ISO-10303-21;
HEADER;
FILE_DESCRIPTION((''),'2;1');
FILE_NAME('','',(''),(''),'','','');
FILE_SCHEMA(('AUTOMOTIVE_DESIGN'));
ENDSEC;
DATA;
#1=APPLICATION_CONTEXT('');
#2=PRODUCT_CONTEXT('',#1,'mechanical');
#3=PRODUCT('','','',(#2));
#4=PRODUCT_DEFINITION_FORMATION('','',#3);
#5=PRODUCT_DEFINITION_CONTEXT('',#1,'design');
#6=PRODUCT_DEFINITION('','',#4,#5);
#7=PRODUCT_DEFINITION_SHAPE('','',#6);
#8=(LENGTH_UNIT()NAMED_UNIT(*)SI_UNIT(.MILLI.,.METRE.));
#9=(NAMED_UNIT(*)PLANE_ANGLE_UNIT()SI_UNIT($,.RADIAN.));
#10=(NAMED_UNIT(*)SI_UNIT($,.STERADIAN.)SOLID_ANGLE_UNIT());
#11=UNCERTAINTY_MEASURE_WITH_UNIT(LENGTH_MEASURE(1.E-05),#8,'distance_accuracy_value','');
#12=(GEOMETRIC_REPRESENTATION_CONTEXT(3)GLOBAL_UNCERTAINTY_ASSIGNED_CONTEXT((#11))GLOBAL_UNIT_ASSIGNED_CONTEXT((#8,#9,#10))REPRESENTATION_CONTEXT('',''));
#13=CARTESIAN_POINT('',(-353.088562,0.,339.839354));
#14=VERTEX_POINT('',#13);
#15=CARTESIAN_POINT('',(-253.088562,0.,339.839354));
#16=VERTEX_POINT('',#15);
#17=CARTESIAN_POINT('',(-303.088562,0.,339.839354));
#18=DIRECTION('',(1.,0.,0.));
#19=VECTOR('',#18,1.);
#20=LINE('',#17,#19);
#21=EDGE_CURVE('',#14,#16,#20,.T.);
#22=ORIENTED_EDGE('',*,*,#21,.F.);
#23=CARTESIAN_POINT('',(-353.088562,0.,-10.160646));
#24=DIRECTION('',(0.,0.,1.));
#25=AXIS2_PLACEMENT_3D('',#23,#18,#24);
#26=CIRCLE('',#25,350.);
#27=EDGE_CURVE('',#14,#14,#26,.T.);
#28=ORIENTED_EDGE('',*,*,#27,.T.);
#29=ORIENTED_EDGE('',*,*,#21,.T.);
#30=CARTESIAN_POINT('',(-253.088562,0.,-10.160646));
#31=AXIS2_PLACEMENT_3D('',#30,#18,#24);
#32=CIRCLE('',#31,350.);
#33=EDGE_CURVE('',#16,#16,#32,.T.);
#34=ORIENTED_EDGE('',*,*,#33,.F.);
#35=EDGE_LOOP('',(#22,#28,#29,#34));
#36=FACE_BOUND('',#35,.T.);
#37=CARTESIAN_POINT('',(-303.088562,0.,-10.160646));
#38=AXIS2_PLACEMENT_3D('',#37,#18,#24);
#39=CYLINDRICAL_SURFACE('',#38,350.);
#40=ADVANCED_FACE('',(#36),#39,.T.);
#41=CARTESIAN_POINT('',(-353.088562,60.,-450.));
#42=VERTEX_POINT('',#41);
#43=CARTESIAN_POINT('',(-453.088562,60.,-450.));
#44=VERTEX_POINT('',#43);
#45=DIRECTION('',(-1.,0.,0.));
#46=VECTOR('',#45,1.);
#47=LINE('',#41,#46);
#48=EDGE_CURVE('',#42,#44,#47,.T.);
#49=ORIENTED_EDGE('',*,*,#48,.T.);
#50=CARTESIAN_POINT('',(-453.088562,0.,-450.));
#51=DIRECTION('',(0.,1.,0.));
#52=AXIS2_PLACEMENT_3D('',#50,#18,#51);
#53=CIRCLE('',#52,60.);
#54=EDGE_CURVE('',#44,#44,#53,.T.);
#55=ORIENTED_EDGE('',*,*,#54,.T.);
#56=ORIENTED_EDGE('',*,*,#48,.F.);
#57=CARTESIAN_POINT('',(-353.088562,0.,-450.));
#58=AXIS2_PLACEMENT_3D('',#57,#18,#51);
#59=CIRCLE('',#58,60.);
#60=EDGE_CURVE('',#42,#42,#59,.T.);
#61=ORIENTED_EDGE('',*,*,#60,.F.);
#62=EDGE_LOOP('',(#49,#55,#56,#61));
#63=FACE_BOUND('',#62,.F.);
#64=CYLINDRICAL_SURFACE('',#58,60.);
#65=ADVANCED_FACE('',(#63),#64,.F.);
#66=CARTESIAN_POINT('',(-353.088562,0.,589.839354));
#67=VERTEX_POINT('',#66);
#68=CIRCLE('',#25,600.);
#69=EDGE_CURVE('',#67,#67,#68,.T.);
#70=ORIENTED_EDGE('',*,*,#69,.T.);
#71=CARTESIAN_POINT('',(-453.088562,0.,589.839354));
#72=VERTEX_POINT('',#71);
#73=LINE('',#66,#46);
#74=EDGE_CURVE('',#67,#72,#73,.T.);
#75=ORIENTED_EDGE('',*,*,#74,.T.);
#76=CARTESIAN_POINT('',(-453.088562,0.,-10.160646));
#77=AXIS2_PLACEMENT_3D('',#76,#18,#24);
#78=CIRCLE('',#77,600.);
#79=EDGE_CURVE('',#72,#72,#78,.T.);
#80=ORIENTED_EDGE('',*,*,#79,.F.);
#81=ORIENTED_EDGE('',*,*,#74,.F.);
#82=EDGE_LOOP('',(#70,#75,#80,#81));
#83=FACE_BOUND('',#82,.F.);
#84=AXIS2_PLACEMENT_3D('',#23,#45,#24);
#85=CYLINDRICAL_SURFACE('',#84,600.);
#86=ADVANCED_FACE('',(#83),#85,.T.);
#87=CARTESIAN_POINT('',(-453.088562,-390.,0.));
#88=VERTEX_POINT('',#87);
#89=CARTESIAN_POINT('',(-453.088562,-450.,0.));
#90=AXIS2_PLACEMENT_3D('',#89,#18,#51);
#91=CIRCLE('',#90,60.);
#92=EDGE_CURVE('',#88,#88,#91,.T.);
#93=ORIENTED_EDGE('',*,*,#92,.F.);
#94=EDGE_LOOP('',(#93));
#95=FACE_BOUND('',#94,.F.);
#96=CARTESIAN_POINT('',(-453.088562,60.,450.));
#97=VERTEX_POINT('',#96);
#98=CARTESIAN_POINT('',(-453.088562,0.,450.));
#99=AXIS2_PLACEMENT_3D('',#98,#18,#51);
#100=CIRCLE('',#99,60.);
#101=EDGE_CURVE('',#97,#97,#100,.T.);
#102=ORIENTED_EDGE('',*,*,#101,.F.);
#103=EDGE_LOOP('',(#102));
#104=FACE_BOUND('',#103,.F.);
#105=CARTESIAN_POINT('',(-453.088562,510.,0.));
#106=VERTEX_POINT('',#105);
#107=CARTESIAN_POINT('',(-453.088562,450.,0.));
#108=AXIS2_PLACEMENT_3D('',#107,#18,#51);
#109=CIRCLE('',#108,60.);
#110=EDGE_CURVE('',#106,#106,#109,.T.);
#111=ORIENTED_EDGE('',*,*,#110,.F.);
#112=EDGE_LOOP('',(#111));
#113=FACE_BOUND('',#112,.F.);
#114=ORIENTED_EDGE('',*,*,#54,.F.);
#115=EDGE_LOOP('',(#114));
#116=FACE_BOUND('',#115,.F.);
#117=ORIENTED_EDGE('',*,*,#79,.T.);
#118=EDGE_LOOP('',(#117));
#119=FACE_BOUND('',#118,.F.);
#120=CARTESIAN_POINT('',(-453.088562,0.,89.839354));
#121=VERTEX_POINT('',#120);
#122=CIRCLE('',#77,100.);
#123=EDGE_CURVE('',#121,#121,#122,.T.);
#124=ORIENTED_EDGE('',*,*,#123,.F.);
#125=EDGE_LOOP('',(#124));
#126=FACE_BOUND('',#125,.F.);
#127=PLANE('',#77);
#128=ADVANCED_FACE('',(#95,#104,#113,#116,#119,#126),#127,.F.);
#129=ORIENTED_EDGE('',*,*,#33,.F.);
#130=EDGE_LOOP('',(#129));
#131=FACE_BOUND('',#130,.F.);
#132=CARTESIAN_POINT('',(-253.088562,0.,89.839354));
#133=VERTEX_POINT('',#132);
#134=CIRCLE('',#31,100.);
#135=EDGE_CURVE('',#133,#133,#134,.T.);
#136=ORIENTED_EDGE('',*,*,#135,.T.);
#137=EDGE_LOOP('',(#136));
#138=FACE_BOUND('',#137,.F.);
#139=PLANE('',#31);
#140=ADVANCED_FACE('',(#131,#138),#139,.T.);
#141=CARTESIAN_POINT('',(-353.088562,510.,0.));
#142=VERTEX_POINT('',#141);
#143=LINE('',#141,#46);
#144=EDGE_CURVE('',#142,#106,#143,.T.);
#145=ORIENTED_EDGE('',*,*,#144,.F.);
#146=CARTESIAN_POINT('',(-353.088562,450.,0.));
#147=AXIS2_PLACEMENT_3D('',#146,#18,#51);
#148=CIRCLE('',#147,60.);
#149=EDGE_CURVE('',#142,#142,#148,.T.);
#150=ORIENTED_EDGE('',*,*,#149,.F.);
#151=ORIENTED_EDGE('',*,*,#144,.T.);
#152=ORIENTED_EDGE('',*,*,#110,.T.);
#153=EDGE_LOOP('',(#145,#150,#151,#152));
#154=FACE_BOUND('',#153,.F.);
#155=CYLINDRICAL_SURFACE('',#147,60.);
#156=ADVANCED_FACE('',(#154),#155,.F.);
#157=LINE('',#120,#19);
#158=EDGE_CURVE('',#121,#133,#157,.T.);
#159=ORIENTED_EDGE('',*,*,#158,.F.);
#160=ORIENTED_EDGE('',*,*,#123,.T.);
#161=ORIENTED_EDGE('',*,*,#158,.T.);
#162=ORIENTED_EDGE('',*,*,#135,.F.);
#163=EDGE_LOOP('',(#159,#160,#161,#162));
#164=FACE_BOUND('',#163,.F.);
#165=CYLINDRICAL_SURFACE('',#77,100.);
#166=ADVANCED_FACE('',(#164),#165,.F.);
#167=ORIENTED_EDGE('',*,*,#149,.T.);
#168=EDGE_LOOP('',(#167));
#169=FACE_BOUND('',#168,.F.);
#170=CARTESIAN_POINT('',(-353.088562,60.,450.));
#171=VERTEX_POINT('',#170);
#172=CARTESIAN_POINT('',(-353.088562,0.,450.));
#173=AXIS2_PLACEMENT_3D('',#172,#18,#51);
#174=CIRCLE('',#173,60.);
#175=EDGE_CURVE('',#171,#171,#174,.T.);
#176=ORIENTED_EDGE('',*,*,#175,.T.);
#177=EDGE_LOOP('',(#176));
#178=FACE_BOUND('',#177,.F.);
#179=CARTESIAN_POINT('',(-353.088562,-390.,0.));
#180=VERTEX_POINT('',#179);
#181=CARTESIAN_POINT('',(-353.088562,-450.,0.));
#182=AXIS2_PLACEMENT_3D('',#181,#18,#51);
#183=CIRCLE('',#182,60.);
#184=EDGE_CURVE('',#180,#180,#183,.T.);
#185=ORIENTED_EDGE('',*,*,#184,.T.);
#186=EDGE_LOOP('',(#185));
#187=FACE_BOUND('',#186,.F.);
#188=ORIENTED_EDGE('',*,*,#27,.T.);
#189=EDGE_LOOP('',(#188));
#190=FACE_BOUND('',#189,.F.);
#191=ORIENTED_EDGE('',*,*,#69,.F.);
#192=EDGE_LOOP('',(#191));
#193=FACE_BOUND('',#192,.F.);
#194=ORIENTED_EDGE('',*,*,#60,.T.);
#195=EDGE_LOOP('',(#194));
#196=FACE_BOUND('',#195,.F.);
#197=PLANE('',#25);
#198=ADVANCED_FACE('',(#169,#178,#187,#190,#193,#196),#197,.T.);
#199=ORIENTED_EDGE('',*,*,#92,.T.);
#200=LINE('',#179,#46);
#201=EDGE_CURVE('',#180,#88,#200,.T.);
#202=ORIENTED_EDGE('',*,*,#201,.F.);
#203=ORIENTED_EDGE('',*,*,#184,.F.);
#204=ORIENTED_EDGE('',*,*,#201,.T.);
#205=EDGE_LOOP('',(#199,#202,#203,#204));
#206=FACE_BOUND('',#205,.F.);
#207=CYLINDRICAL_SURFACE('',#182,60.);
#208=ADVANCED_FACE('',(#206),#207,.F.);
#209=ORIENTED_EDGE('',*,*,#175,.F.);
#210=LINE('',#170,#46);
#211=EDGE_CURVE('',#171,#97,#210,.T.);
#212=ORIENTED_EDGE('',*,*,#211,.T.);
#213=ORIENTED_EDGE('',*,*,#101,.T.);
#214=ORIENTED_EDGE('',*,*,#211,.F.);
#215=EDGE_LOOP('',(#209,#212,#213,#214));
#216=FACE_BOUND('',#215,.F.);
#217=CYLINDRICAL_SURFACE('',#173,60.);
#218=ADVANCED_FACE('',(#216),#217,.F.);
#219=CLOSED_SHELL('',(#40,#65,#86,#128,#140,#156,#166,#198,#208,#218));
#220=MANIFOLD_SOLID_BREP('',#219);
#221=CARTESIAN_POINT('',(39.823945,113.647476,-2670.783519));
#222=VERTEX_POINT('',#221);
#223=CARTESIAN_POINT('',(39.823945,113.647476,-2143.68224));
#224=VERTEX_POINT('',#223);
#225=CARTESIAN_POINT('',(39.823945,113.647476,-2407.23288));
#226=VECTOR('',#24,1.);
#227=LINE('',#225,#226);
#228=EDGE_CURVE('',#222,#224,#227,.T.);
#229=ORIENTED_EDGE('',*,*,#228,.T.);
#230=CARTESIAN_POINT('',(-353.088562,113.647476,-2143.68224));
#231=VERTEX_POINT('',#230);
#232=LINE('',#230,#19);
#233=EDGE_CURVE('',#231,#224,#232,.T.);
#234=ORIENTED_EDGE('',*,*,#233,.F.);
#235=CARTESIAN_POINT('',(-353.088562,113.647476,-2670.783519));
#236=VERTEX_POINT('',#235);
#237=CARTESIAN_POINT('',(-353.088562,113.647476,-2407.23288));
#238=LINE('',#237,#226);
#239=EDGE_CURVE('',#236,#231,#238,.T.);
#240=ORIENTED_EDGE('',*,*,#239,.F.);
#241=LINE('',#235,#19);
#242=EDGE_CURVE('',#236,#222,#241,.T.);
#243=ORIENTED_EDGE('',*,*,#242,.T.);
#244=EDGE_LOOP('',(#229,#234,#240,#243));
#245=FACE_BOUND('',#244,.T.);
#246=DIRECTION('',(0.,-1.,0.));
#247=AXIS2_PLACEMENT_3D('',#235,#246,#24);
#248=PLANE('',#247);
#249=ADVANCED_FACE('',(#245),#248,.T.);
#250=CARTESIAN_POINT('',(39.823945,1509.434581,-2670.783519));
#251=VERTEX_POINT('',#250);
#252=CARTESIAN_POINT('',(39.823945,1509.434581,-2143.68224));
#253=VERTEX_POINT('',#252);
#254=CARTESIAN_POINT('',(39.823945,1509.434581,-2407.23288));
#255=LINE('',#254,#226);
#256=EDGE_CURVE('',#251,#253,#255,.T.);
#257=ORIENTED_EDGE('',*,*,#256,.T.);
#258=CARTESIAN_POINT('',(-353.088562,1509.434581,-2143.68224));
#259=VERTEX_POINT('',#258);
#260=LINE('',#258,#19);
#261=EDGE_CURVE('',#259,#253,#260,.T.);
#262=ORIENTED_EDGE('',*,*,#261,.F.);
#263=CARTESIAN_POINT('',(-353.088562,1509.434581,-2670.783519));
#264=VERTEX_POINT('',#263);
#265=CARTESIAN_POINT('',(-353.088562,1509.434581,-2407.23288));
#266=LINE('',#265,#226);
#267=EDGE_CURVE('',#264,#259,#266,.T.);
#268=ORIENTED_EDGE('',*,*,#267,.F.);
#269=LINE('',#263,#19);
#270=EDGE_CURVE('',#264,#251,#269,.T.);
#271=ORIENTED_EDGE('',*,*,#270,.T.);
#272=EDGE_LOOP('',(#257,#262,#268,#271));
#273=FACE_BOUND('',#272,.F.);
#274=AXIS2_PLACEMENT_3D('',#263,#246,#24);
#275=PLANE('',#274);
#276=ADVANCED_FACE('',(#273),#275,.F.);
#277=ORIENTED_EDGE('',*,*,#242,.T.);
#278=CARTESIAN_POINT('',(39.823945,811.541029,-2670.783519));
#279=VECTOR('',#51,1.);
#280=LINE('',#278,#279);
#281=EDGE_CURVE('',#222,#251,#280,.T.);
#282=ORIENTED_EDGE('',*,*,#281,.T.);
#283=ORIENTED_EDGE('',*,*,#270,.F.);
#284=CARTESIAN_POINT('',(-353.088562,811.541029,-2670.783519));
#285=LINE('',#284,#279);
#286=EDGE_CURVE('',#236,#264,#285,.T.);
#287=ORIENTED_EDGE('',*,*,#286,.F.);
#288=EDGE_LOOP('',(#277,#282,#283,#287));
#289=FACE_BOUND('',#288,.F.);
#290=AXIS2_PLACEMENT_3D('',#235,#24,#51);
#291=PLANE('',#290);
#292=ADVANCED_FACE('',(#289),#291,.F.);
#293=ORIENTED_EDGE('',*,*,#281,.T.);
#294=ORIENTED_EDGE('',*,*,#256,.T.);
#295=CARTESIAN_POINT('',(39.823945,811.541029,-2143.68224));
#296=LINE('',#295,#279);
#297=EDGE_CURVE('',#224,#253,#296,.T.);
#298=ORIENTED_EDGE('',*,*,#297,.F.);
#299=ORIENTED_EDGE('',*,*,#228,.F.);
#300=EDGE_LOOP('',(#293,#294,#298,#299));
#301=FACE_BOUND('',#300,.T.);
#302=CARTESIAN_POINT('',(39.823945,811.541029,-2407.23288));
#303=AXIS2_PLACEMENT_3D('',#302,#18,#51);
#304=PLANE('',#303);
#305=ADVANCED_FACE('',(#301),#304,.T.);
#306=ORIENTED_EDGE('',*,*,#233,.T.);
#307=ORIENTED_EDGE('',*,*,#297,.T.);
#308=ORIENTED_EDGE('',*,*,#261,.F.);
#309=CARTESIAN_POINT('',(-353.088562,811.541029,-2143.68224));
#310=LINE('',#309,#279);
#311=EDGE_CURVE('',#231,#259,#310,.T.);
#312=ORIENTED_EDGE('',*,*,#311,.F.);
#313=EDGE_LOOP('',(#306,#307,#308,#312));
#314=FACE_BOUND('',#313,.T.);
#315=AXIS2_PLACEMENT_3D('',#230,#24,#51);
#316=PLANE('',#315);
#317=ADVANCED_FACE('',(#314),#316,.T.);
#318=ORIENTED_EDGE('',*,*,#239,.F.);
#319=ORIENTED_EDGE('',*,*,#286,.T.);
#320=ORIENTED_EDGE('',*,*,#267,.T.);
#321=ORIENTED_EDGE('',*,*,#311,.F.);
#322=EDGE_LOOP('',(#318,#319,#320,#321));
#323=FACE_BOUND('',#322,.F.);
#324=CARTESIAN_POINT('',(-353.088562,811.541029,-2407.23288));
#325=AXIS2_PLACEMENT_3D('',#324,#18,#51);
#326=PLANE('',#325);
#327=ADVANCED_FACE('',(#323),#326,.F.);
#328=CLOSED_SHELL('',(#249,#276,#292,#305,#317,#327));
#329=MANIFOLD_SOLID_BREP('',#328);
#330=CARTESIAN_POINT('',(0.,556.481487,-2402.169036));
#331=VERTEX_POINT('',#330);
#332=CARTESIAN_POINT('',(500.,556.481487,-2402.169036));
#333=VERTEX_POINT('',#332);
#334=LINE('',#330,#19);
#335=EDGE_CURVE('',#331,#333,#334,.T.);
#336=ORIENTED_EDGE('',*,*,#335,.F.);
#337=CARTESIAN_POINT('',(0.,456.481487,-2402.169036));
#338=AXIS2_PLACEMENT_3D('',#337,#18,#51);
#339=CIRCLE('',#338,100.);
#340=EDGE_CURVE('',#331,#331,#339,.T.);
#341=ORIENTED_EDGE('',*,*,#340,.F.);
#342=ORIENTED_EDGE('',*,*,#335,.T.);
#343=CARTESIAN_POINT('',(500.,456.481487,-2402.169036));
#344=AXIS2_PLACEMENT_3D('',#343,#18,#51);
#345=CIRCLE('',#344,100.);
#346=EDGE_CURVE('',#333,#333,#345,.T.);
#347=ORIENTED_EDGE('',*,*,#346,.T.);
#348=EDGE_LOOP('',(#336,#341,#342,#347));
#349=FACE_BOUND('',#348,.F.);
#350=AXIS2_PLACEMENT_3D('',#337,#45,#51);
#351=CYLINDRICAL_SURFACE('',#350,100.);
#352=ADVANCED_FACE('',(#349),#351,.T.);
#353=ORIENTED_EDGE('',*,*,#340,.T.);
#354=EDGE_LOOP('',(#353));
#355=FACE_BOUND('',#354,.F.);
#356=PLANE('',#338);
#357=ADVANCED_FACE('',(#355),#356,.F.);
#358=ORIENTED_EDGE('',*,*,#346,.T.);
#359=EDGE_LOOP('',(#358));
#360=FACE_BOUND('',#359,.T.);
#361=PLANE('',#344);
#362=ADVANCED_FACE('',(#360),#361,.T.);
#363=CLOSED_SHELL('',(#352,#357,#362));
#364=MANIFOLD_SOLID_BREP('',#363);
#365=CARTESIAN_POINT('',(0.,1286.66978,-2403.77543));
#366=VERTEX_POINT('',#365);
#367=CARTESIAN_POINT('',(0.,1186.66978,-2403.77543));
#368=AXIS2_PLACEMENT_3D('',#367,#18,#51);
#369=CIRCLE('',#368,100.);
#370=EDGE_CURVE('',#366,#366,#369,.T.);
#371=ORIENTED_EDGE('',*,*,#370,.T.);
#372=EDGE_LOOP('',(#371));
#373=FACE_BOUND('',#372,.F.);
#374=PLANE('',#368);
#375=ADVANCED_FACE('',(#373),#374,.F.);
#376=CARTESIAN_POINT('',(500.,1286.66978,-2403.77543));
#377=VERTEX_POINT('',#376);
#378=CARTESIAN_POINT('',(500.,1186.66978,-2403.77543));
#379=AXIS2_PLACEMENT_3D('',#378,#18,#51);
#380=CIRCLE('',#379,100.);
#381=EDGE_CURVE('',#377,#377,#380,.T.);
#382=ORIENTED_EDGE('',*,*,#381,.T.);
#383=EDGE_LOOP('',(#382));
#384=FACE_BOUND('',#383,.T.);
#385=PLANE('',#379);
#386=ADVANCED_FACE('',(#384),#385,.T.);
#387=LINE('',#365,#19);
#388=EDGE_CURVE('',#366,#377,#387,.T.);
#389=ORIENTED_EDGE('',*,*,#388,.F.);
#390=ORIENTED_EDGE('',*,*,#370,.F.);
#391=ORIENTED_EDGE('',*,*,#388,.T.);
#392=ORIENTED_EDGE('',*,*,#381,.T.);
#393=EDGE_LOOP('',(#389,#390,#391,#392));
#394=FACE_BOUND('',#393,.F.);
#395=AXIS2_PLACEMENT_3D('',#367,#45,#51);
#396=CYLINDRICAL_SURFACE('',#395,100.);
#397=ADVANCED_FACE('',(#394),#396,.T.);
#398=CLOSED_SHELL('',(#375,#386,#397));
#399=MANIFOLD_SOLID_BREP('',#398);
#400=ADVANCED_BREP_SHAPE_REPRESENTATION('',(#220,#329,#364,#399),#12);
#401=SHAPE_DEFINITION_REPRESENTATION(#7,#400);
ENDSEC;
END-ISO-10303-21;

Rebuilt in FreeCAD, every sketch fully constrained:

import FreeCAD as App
import Part
import Sketcher
from FreeCAD import Vector
Q = App.Units.Quantity

doc = App.newDocument("Part")
body = doc.addObject("PartDesign::Body", "Body")

# Sketch on XZ plane
sketch1 = body.newObject("Sketcher::SketchObject", "Sketch")
sketch1.AttachmentSupport = (doc.getObject("XZ_Plane"), [""])
sketch1.MapMode = "FlatFace"
sketch1.addGeometry([
    Part.LineSegment(Vector(-353, 590, 0), Vector(-453, 590, 0)),  # 0
    Part.LineSegment(Vector(-453, 590, 0), Vector(-453, 90, 0)),  # 1
    Part.LineSegment(Vector(-453, 90, 0), Vector(-253, 90, 0)),  # 2
    Part.LineSegment(Vector(-253, 90, 0), Vector(-253, 340, 0)),  # 3
    Part.LineSegment(Vector(-253, 340, 0), Vector(-353, 340, 0)),  # 4
    Part.LineSegment(Vector(-353, 340, 0), Vector(-353, 590, 0)),  # 5
], False)
sketch1.addGeometry(Part.LineSegment(Vector(-453, -10, 0), Vector(-253, -10, 0)), True)  # axis
sketch1.addConstraint([
    Sketcher.Constraint("Coincident", 0, 2, 1, 1),
    Sketcher.Constraint("Coincident", 1, 2, 2, 1),
    Sketcher.Constraint("Coincident", 2, 2, 3, 1),
    Sketcher.Constraint("Coincident", 3, 2, 4, 1),
    Sketcher.Constraint("Coincident", 4, 2, 5, 1),
    Sketcher.Constraint("Coincident", 5, 2, 0, 1),
    Sketcher.Constraint("Horizontal", 0),
    Sketcher.Constraint("Vertical", 1),
    Sketcher.Constraint("Horizontal", 2),
    Sketcher.Constraint("Vertical", 3),
    Sketcher.Constraint("Horizontal", 4),
    Sketcher.Constraint("Vertical", 5),
    Sketcher.Constraint("Horizontal", 6),
    Sketcher.Constraint("Vertical", 1, 2, 6, 1),
    Sketcher.Constraint("Vertical", 3, 2, 6, 2),
    Sketcher.Constraint("Equal", 0, 4),
    Sketcher.Constraint("Equal", 3, 5),
    Sketcher.Constraint("DistanceX", 0, 2, 0, 1, Q("100 mm")),
    Sketcher.Constraint("DistanceY", 1, 2, 1, 1, Q("500 mm")),
    Sketcher.Constraint("DistanceY", 6, 1, 1, 2, Q("100 mm")),
    Sketcher.Constraint("DistanceX", 2, 2, -1, 1, Q("253.088562 mm")),
    Sketcher.Constraint("DistanceY", -1, 1, 0, 2, Q("589.839354 mm")),
])
revolution = body.newObject("PartDesign::Revolution", "Revolution")
revolution.Profile = sketch1
revolution.ReferenceAxis = (sketch1, ["Axis0"])
revolution.Angle = 360

# Sketch on YZ plane
sketch2 = body.newObject("Sketcher::SketchObject", "Sketch001")
sketch2.AttachmentSupport = (doc.getObject("YZ_Plane"), [""])
sketch2.MapMode = "FlatFace"
sketch2.AttachmentOffset = App.Placement(Vector(0, 0, -353.088562), App.Rotation())
sketch2.addGeometry([
    Part.Circle(Vector(-450, 0, 0), Vector(0, 0, 1), 60),
    Part.Circle(Vector(0, 450, 0), Vector(0, 0, 1), 60),
    Part.Circle(Vector(0, -450, 0), Vector(0, 0, 1), 60),
    Part.Circle(Vector(450, 0, 0), Vector(0, 0, 1), 60),
], False)
sketch2.addConstraint([
    Sketcher.Constraint("Equal", 0, 1),
    Sketcher.Constraint("Equal", 1, 2),
    Sketcher.Constraint("Equal", 2, 3),
    Sketcher.Constraint("Symmetric", 1, 3, 2, 3, -1, 1),
    Sketcher.Constraint("Symmetric", 0, 3, 3, 3, -1, 1),
    Sketcher.Constraint("PointOnObject", 0, 3, -1),
    Sketcher.Constraint("PointOnObject", 1, 3, -2),
    Sketcher.Constraint("Diameter", 0, Q("120 mm")),
    Sketcher.Constraint("DistanceX", 0, 3, -1, 1, Q("450 mm")),
    Sketcher.Constraint("DistanceY", -1, 1, 1, 3, Q("450 mm")),
])
pocket1 = body.newObject("PartDesign::Pocket", "Pocket")
pocket1.Profile = sketch2
pocket1.Type = "ThroughAll"
body2 = doc.addObject("PartDesign::Body", "Body001")
body2.AllowCompound = True

# Sketch on YZ plane
sketch3 = body2.newObject("Sketcher::SketchObject", "Sketch002")
sketch3.AttachmentSupport = (doc.getObject("YZ_Plane001"), [""])
sketch3.MapMode = "FlatFace"
sketch3.addGeometry([
    Part.Circle(Vector(1187, -2404, 0), Vector(0, 0, 1), 100),
    Part.Circle(Vector(456, -2402, 0), Vector(0, 0, 1), 100),
], False)
sketch3.addConstraint([
    Sketcher.Constraint("Equal", 0, 1),
    Sketcher.Constraint("Diameter", 0, Q("200 mm")),
    Sketcher.Constraint("DistanceX", -1, 1, 0, 3, Q("1186.66978 mm")),
    Sketcher.Constraint("DistanceY", 0, 3, -1, 1, Q("2403.77543 mm")),
    Sketcher.Constraint("DistanceX", -1, 1, 1, 3, Q("456.481487 mm")),
    Sketcher.Constraint("DistanceY", 1, 3, -1, 1, Q("2402.169036 mm")),
])
pad1 = body2.newObject("PartDesign::Pad", "Pad")
pad1.Profile = sketch3
pad1.Length = 500
body3 = doc.addObject("PartDesign::Body", "Body002")

# Sketch on YZ plane
sketch4 = body3.newObject("Sketcher::SketchObject", "Sketch003")
sketch4.AttachmentSupport = (doc.getObject("YZ_Plane002"), [""])
sketch4.MapMode = "FlatFace"
sketch4.AttachmentOffset = App.Placement(Vector(0, 0, -353.088562), App.Rotation())
sketch4.addGeometry([
    Part.LineSegment(Vector(114, -2144, 0), Vector(114, -2671, 0)),
    Part.LineSegment(Vector(114, -2671, 0), Vector(1509, -2671, 0)),
    Part.LineSegment(Vector(1509, -2671, 0), Vector(1509, -2144, 0)),
    Part.LineSegment(Vector(1509, -2144, 0), Vector(114, -2144, 0)),
], False)
sketch4.addConstraint([
    Sketcher.Constraint("Coincident", 0, 2, 1, 1),
    Sketcher.Constraint("Coincident", 1, 2, 2, 1),
    Sketcher.Constraint("Coincident", 2, 2, 3, 1),
    Sketcher.Constraint("Coincident", 3, 2, 0, 1),
    Sketcher.Constraint("Vertical", 0),
    Sketcher.Constraint("Horizontal", 1),
    Sketcher.Constraint("Vertical", 2),
    Sketcher.Constraint("Horizontal", 3),
    Sketcher.Constraint("DistanceY", 0, 2, 0, 1, Q("527.101279 mm")),
    Sketcher.Constraint("DistanceX", 1, 1, 1, 2, Q("1395.787105 mm")),
    Sketcher.Constraint("DistanceY", 0, 2, -1, 1, Q("2670.783519 mm")),
    Sketcher.Constraint("DistanceX", -1, 1, 1, 2, Q("1509.434581 mm")),
])
pad2 = body3.newObject("PartDesign::Pad", "Pad001")
pad2.Profile = sketch4
pad2.Length = 392.912507

doc.recompute()
